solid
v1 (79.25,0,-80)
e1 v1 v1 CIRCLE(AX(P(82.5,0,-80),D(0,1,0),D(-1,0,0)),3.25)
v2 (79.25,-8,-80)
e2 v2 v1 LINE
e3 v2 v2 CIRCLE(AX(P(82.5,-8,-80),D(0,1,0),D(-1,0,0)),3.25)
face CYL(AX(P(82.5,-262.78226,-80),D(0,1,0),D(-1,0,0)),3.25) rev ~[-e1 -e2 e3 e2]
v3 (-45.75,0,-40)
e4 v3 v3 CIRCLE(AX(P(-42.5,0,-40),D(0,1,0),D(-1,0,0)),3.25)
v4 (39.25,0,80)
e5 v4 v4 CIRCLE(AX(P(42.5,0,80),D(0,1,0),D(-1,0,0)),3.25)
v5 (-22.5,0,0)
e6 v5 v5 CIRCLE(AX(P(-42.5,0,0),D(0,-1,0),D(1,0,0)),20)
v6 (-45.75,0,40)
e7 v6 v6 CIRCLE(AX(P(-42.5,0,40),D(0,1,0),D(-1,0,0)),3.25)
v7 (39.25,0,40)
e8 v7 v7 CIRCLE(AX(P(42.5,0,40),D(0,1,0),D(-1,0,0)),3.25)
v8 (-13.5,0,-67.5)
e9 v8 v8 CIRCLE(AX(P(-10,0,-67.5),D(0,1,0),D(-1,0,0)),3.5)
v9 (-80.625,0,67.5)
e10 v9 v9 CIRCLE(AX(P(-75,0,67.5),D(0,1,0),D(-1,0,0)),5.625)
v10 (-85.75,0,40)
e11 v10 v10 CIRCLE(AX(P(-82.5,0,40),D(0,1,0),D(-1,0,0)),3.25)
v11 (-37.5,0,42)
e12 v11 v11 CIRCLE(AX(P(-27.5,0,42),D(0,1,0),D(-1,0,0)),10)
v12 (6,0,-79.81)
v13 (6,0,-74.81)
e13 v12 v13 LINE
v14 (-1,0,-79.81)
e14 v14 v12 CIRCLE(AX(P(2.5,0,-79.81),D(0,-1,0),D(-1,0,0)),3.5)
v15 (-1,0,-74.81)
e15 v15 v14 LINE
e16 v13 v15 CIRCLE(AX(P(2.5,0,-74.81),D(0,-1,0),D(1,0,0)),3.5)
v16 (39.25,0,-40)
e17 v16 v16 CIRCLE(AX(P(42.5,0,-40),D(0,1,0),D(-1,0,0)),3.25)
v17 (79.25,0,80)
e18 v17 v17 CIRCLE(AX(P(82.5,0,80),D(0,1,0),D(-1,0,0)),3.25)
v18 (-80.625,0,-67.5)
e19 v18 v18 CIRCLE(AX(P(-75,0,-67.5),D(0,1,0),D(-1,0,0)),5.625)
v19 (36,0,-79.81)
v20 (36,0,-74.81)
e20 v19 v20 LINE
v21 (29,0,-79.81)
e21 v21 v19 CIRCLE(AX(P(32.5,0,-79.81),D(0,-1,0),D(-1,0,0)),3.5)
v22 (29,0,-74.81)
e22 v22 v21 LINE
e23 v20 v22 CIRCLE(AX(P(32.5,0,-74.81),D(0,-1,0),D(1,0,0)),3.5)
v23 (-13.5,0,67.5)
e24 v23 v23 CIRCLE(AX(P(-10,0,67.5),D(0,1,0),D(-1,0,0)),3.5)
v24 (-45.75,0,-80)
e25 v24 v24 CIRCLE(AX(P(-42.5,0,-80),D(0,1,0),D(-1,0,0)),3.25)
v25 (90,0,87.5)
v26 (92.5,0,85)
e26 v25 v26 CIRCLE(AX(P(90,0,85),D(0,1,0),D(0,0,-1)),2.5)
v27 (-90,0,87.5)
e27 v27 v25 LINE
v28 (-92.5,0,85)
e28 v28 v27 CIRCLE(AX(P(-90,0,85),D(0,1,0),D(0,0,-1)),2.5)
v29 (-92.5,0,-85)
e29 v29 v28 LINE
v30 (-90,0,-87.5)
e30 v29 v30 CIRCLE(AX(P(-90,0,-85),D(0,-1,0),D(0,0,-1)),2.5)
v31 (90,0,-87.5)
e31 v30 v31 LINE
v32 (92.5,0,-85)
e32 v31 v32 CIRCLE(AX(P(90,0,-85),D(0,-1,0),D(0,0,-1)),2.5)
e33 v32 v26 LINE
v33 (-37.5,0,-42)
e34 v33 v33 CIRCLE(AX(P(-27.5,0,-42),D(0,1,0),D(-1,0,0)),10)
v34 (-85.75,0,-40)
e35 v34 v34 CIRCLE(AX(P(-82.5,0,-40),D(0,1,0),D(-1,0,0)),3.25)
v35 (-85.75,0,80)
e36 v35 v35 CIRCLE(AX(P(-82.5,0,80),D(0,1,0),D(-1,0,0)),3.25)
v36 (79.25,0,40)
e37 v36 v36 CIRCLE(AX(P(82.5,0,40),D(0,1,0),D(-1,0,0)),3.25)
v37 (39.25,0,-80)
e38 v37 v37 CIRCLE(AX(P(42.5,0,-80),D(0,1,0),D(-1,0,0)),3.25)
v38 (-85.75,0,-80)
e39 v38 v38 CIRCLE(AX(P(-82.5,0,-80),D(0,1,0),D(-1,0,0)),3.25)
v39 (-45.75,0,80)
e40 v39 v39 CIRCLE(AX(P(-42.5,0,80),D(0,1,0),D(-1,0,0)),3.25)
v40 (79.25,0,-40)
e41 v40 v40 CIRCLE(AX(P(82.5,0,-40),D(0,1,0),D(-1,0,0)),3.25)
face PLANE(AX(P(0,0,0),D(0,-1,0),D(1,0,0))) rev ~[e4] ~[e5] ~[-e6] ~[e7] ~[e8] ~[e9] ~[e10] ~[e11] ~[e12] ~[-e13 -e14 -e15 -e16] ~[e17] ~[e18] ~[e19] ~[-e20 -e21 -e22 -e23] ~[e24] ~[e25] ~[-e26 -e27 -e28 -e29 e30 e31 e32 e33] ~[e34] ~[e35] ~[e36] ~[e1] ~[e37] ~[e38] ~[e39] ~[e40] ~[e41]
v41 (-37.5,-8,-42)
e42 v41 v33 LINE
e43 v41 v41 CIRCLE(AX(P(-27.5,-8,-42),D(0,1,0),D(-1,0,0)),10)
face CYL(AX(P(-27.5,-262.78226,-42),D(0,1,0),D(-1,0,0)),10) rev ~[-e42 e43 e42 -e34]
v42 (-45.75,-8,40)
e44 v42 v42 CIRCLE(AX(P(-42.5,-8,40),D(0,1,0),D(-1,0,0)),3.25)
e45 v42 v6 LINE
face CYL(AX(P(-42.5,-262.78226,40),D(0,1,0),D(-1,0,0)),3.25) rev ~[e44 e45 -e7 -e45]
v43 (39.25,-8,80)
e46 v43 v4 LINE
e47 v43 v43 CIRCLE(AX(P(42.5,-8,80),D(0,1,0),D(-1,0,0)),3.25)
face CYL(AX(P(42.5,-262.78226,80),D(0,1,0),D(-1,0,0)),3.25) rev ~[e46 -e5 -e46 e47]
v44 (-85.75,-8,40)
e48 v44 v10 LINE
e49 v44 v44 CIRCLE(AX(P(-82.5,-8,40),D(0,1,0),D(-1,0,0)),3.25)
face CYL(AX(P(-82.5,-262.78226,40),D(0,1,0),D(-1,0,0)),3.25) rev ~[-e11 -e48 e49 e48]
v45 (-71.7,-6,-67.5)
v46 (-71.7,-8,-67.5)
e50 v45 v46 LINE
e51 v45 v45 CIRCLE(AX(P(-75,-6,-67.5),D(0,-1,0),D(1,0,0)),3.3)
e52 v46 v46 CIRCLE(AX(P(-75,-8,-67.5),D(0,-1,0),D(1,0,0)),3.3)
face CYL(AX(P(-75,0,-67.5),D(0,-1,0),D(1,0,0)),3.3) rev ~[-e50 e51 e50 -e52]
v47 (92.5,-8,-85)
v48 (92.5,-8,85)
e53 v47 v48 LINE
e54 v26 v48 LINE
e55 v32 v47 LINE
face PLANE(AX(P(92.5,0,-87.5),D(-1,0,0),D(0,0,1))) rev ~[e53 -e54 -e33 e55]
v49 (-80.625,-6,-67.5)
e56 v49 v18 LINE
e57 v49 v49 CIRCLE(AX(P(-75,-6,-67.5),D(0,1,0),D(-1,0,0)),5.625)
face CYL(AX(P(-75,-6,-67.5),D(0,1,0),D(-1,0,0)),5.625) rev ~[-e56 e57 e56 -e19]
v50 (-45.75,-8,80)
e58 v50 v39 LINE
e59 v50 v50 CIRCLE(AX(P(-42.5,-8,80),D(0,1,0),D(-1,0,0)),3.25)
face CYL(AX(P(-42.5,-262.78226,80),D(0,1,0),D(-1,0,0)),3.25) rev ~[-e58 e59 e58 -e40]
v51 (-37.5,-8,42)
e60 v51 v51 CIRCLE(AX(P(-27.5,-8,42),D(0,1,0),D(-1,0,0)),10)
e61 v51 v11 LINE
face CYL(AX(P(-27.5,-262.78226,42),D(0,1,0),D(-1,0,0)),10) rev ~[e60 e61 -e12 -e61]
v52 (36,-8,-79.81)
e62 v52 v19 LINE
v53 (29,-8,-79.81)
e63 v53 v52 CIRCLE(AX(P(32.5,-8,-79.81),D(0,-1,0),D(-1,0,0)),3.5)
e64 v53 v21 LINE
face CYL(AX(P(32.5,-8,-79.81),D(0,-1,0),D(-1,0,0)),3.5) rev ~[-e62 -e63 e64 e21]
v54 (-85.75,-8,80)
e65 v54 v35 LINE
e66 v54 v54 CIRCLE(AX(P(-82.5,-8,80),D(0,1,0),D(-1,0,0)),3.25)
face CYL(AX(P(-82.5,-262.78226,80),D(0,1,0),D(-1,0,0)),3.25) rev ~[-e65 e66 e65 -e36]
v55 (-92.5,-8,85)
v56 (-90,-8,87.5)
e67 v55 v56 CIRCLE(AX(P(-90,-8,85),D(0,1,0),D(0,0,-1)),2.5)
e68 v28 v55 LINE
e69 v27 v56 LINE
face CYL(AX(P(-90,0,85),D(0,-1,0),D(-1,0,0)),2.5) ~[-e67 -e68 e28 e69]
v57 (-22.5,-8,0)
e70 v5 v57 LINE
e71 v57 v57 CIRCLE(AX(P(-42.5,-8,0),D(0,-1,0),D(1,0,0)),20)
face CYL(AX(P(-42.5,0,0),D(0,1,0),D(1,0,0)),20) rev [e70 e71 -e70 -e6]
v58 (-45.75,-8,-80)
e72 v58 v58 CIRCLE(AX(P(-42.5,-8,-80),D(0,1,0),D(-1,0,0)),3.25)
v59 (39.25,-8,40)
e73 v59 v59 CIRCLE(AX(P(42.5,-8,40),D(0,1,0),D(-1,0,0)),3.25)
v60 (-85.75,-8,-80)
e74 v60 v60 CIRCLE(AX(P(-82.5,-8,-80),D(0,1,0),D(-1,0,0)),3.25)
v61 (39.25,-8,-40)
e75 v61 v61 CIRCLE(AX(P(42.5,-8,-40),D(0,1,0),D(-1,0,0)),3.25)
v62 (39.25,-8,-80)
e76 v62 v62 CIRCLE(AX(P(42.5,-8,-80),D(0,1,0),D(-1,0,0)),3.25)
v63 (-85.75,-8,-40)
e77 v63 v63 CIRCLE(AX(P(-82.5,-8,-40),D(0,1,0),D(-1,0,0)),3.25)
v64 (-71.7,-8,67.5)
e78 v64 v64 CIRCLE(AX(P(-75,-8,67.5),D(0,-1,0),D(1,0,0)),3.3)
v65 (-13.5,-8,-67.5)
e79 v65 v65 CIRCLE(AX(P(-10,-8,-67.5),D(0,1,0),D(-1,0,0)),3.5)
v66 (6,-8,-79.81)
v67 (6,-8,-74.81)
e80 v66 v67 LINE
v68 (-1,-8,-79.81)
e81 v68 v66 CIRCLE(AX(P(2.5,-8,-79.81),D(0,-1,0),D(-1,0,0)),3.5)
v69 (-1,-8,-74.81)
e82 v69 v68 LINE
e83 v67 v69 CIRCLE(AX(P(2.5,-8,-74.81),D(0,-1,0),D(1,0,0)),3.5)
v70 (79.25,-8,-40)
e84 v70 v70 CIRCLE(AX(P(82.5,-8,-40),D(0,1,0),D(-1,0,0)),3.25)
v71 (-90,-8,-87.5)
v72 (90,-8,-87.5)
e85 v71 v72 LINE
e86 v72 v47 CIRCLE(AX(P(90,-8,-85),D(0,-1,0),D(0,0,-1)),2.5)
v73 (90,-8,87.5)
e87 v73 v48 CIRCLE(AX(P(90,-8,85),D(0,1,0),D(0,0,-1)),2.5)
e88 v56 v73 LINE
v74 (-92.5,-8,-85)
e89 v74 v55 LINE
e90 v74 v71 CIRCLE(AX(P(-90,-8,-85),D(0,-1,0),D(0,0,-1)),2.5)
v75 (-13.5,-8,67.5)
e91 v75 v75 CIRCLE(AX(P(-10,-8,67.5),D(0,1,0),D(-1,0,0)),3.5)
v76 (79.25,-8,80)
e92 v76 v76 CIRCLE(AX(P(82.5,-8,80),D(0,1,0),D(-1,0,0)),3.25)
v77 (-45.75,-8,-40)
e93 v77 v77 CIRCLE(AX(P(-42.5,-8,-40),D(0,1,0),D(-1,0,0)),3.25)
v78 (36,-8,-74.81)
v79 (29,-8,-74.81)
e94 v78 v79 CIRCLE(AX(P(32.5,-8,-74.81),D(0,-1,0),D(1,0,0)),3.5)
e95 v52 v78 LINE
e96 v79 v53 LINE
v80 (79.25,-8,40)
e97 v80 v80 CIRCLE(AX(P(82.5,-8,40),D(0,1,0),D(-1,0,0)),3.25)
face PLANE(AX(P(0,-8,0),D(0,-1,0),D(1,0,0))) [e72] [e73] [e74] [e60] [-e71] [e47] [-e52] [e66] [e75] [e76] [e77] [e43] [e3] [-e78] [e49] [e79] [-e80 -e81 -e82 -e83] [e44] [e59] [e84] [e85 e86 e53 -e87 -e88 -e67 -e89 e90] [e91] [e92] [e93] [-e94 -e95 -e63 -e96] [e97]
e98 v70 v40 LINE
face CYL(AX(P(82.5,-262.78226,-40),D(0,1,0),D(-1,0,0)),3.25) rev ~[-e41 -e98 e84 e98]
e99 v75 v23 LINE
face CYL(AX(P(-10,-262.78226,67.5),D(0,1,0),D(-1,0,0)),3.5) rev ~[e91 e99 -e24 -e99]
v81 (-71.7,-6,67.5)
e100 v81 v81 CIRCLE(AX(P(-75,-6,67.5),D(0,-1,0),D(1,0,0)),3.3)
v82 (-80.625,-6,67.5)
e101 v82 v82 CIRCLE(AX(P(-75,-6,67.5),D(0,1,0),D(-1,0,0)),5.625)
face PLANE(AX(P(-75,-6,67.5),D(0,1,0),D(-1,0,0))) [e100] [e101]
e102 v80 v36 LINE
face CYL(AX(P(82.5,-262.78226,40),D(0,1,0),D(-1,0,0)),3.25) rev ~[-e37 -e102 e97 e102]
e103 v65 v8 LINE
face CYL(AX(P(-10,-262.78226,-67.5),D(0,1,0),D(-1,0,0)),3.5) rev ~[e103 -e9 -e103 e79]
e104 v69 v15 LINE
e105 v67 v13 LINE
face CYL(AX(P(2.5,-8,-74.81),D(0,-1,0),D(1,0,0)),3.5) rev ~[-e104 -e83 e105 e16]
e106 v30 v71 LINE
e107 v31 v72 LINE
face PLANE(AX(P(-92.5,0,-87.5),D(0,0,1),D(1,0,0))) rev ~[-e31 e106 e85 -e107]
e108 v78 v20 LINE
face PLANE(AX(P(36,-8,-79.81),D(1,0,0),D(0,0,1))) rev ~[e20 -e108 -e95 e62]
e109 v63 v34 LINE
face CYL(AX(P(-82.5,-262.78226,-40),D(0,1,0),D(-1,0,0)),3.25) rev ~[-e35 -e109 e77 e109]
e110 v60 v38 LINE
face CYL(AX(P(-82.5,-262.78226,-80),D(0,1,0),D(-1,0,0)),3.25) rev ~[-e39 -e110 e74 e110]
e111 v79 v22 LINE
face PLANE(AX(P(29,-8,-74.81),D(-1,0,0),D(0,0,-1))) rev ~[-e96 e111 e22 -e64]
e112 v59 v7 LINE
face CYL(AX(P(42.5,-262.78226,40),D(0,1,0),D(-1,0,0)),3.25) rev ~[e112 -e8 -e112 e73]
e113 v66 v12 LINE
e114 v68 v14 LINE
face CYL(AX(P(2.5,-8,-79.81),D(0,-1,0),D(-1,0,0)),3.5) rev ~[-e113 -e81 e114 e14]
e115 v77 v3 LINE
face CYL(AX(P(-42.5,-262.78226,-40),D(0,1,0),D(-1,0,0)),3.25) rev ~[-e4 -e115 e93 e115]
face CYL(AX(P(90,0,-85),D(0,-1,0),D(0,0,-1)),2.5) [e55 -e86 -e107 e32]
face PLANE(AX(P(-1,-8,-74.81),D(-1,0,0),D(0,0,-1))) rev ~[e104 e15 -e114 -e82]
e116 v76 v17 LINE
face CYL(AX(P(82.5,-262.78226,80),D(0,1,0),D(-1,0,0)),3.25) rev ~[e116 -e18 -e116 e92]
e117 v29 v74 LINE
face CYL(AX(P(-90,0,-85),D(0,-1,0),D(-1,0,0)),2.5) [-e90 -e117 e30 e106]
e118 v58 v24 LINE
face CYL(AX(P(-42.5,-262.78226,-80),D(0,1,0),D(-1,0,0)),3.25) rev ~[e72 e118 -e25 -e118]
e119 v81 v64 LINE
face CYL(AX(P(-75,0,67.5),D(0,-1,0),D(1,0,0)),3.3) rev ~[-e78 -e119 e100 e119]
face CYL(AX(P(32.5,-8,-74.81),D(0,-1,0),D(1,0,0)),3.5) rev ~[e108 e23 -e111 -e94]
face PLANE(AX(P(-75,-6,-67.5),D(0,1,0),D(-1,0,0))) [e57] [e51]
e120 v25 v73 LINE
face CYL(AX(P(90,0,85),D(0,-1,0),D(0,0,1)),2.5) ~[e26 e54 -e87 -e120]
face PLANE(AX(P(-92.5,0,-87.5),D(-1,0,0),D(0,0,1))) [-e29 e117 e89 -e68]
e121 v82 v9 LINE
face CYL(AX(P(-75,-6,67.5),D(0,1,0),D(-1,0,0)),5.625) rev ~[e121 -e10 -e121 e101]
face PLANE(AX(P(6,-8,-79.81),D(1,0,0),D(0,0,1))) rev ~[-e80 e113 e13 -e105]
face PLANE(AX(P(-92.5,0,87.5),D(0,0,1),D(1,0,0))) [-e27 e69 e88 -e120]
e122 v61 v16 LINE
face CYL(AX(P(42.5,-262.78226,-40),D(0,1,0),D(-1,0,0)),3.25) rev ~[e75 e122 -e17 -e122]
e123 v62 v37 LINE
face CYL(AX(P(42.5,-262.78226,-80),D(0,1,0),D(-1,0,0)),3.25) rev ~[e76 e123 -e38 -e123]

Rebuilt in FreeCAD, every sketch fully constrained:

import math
import FreeCAD as App
import Part
import Sketcher


def edges_at(feature, points):
    """Names of the edges that pass closest to the given points."""
    edges = feature.Shape.Edges
    near = lambda p: min(range(len(edges)), key=lambda i: edges[i].distToShape(Part.Vertex(*p))[0])
    return sorted({f"Edge{near(p) + 1}" for p in points})

doc = App.newDocument("Part")
body = doc.addObject("PartDesign::Body", "Body")

# Sketch on XZ plane
sketch1 = body.newObject("Sketcher::SketchObject", "Sketch")
sketch1.AttachmentSupport = (doc.getObject("XZ_Plane"), [""])
sketch1.MapMode = "FlatFace"
sketch1.addGeometry([
    Part.LineSegment(App.Vector(-92, 88, 0), App.Vector(-92, -88, 0)),  # 0
    Part.LineSegment(App.Vector(-92, -88, 0), App.Vector(92, -88, 0)),  # 1
    Part.LineSegment(App.Vector(92, -88, 0), App.Vector(92, 88, 0)),  # 2
    Part.LineSegment(App.Vector(92, 88, 0), App.Vector(-92, 88, 0)),  # 3
    Part.Circle(App.Vector(-42, 0, 0), App.Vector(0, 0, 1), 20),  # 4
], False)
sketch1.addConstraint([
    Sketcher.Constraint("Coincident", 0, 2, 1, 1),
    Sketcher.Constraint("Coincident", 1, 2, 2, 1),
    Sketcher.Constraint("Coincident", 2, 2, 3, 1),
    Sketcher.Constraint("Coincident", 3, 2, 0, 1),
    Sketcher.Constraint("Vertical", 0),
    Sketcher.Constraint("Horizontal", 1),
    Sketcher.Constraint("Vertical", 2),
    Sketcher.Constraint("Horizontal", 3),
    Sketcher.Constraint("Symmetric", 0, 2, 2, 2, -1, 1),
    Sketcher.Constraint("PointOnObject", 4, 3, -1),
    Sketcher.Constraint("Diameter", 4, 40.0),
    Sketcher.Constraint("DistanceX", 1, 1, 1, 2, 185.0),
    Sketcher.Constraint("DistanceY", 0, 2, 0, 1, 175.0),
    Sketcher.Constraint("DistanceX", 0, 2, 4, 3, 50.0),
])
pad1 = body.newObject("PartDesign::Pad", "Pad")
pad1.Profile = sketch1
pad1.Length = 8

# Sketch on XZ plane
sketch2 = body.newObject("Sketcher::SketchObject", "Sketch001")
sketch2.AttachmentSupport = (doc.getObject("XZ_Plane"), [""])
sketch2.MapMode = "FlatFace"
sketch2.AttachmentOffset = App.Placement(App.Vector(0, 0, 8), App.Rotation())
sketch2.addGeometry([
    Part.Circle(App.Vector(-82.5, 80, 0), App.Vector(0, 0, 1), 3.2),  # 0
    Part.Circle(App.Vector(-42.5, 80, 0), App.Vector(0, 0, 1), 3.2),  # 1
    Part.Circle(App.Vector(-42.5, 40, 0), App.Vector(0, 0, 1), 3.2),  # 2
    Part.Circle(App.Vector(-82.5, 40, 0), App.Vector(0, 0, 1), 3.2),  # 3
    Part.Circle(App.Vector(-82.5, -40, 0), App.Vector(0, 0, 1), 3.2),  # 4
    Part.Circle(App.Vector(-42.5, -40, 0), App.Vector(0, 0, 1), 3.2),  # 5
    Part.Circle(App.Vector(-42.5, -80, 0), App.Vector(0, 0, 1), 3.2),  # 6
    Part.Circle(App.Vector(-82.5, -80, 0), App.Vector(0, 0, 1), 3.2),  # 7
    Part.Circle(App.Vector(42.5, -80, 0), App.Vector(0, 0, 1), 3.2),  # 8
    Part.Circle(App.Vector(82.5, -80, 0), App.Vector(0, 0, 1), 3.2),  # 9
    Part.Circle(App.Vector(82.5, -40, 0), App.Vector(0, 0, 1), 3.2),  # 10
    Part.Circle(App.Vector(42.5, -40, 0), App.Vector(0, 0, 1), 3.2),  # 11
    Part.Circle(App.Vector(42.5, 40, 0), App.Vector(0, 0, 1), 3.2),  # 12
    Part.Circle(App.Vector(82.5, 40, 0), App.Vector(0, 0, 1), 3.2),  # 13
    Part.Circle(App.Vector(82.5, 80, 0), App.Vector(0, 0, 1), 3.2),  # 14
    Part.Circle(App.Vector(42.5, 80, 0), App.Vector(0, 0, 1), 3.2),  # 15
], False)
sketch2.addConstraint([
    Sketcher.Constraint("Equal", 0, 1),
    Sketcher.Constraint("Equal", 1, 2),
    Sketcher.Constraint("Equal", 2, 3),
    Sketcher.Constraint("Equal", 3, 4),
    Sketcher.Constraint("Equal", 4, 5),
    Sketcher.Constraint("Equal", 5, 6),
    Sketcher.Constraint("Equal", 6, 7),
    Sketcher.Constraint("Equal", 7, 8),
    Sketcher.Constraint("Equal", 8, 9),
    Sketcher.Constraint("Equal", 9, 10),
    Sketcher.Constraint("Equal", 10, 11),
    Sketcher.Constraint("Equal", 11, 12),
    Sketcher.Constraint("Equal", 12, 13),
    Sketcher.Constraint("Equal", 13, 14),
    Sketcher.Constraint("Equal", 14, 15),
    Sketcher.Constraint("Symmetric", 1, 3, 8, 3, -1, 1),
    Sketcher.Constraint("Symmetric", 0, 3, 9, 3, -1, 1),
    Sketcher.Constraint("Symmetric", 3, 3, 10, 3, -1, 1),
    Sketcher.Constraint("Symmetric", 2, 3, 11, 3, -1, 1),
    Sketcher.Constraint("Symmetric", 5, 3, 12, 3, -1, 1),
    Sketcher.Constraint("Symmetric", 4, 3, 13, 3, -1, 1),
    Sketcher.Constraint("Symmetric", 7, 3, 14, 3, -1, 1),
    Sketcher.Constraint("Symmetric", 6, 3, 15, 3, -1, 1),
    Sketcher.Constraint("Symmetric", 6, 3, 8, 3, -2),
    Sketcher.Constraint("Symmetric", 7, 3, 9, 3, -2),
    Sketcher.Constraint("Symmetric", 4, 3, 10, 3, -2),
    Sketcher.Constraint("Symmetric", 5, 3, 11, 3, -2),
    Sketcher.Constraint("Horizontal", 0, 3, 1, 3),
    Sketcher.Constraint("Horizontal", 2, 3, 3, 3),
    Sketcher.Constraint("Vertical", 1, 3, 2, 3),
    Sketcher.Constraint("Vertical", 0, 3, 3, 3),
    Sketcher.Constraint("Diameter", 0, 6.5),
    Sketcher.Constraint("DistanceY", -1, 1, 0, 3, 80.0),
    Sketcher.Constraint("DistanceY", -1, 1, 2, 3, 40.0),
    Sketcher.Constraint("DistanceX", 0, 3, 1, 3, 40.0),
    Sketcher.Constraint("DistanceX", 6, 3, 8, 3, 85.0),
])
doc.recompute()
hole = body.newObject("PartDesign::Hole", "Hole")
hole.Profile = sketch2
hole.ThreadType = "None"
hole.Diameter = 6.5
hole.DepthType = "ThroughAll"

# Sketch on XZ plane
sketch3 = body.newObject("Sketcher::SketchObject", "Sketch002")
sketch3.AttachmentSupport = (doc.getObject("XZ_Plane"), [""])
sketch3.MapMode = "FlatFace"
sketch3.AttachmentOffset = App.Placement(App.Vector(0, 0, 8), App.Rotation())
sketch3.addGeometry([
    Part.Circle(App.Vector(-28, -42, 0), App.Vector(0, 0, 1), 10),
    Part.Circle(App.Vector(-28, 42, 0), App.Vector(0, 0, 1), 10),
], False)
sketch3.addConstraint([
    Sketcher.Constraint("Equal", 0, 1),
    Sketcher.Constraint("Symmetric", 0, 3, 1, 3, -1),
    Sketcher.Constraint("Diameter", 0, 20.0),
    Sketcher.Constraint("DistanceY", 0, 3, -1, 1, 42.0),
    Sketcher.Constraint("DistanceX", 0, 3, -1, 1, 27.5),
])
doc.recompute()
hole2 = body.newObject("PartDesign::Hole", "Hole001")
hole2.Profile = sketch3
hole2.ThreadType = "None"
hole2.Diameter = 20
hole2.DepthType = "ThroughAll"

# Sketch on XZ plane
sketch4 = body.newObject("Sketcher::SketchObject", "Sketch003")
sketch4.AttachmentSupport = (doc.getObject("XZ_Plane"), [""])
sketch4.MapMode = "FlatFace"
sketch4.AttachmentOffset = App.Placement(App.Vector(0, 0, 8), App.Rotation())
sketch4.addGeometry([
    Part.Circle(App.Vector(-10, 67.5, 0), App.Vector(0, 0, 1), 3.5),
    Part.Circle(App.Vector(-10, -67.5, 0), App.Vector(0, 0, 1), 3.5),
], False)
sketch4.addConstraint([
    Sketcher.Constraint("Equal", 0, 1),
    Sketcher.Constraint("Symmetric", 0, 3, 1, 3, -1),
    Sketcher.Constraint("Diameter", 0, 7.0),
    Sketcher.Constraint("DistanceX", 0, 3, -1, 1, 10.0),
    Sketcher.Constraint("DistanceY", 1, 3, 0, 3, 135.0),
])
doc.recompute()
hole3 = body.newObject("PartDesign::Hole", "Hole002")
hole3.Profile = sketch4
hole3.ThreadType = "None"
hole3.Diameter = 7
hole3.DepthType = "ThroughAll"

# Sketch on XZ plane
sketch5 = body.newObject("Sketcher::SketchObject", "Sketch004")
sketch5.AttachmentSupport = (doc.getObject("XZ_Plane"), [""])
sketch5.MapMode = "FlatFace"
sketch5.AttachmentOffset = App.Placement(App.Vector(0, 0, 8), App.Rotation())
sketch5.addGeometry([
    Part.LineSegment(App.Vector(6, -79.8, 0), App.Vector(6, -74.8, 0)),  # 0
    Part.ArcOfCircle(Part.Circle(App.Vector(2.5, -74.8, 0), App.Vector(0, 0, 1), 3.5), math.radians(0), math.radians(180)),  # 1
    Part.LineSegment(App.Vector(-1, -74.8, 0), App.Vector(-1, -79.8, 0)),  # 2
    Part.ArcOfCircle(Part.Circle(App.Vector(2.5, -79.8, 0), App.Vector(0, 0, 1), 3.5), math.radians(180), math.radians(360)),  # 3
    Part.LineSegment(App.Vector(36, -79.8, 0), App.Vector(36, -74.8, 0)),  # 4
    Part.ArcOfCircle(Part.Circle(App.Vector(32.5, -74.8, 0), App.Vector(0, 0, 1), 3.5), math.radians(0), math.radians(180)),  # 5
    Part.LineSegment(App.Vector(29, -74.8, 0), App.Vector(29, -79.8, 0)),  # 6
    Part.ArcOfCircle(Part.Circle(App.Vector(32.5, -79.8, 0), App.Vector(0, 0, 1), 3.5), math.radians(180), math.radians(360)),  # 7
], False)
sketch5.addConstraint([
    Sketcher.Constraint("Tangent", 0, 2, 1, 1),
    Sketcher.Constraint("Tangent", 1, 2, 2, 1),
    Sketcher.Constraint("Tangent", 2, 2, 3, 1),
    Sketcher.Constraint("Tangent", 3, 2, 0, 1),
    Sketcher.Constraint("Tangent", 4, 2, 5, 1),
    Sketcher.Constraint("Tangent", 5, 2, 6, 1),
    Sketcher.Constraint("Tangent", 6, 2, 7, 1),
    Sketcher.Constraint("Tangent", 7, 2, 4, 1),
    Sketcher.Constraint("Vertical", 0),
    Sketcher.Constraint("Vertical", 2),
    Sketcher.Constraint("Vertical", 4),
    Sketcher.Constraint("Vertical", 6),
    Sketcher.Constraint("Equal", 3, 5),
    Sketcher.Constraint("Horizontal", 1, 3, 5, 3),
    Sketcher.Constraint("Horizontal", 3, 3, 7, 3),
    Sketcher.Constraint("Radius", 1, 3.5),
    Sketcher.Constraint("DistanceY", 0, 1, 0, 2, 5.0),
    Sketcher.Constraint("DistanceX", -1, 1, 0, 2, 6.0),
    Sketcher.Constraint("DistanceX", -1, 1, 4, 2, 36.0),
    Sketcher.Constraint("DistanceY", 1, 3, -1, 1, 74.81),
])
pocket1 = body.newObject("PartDesign::Pocket", "Pocket")
pocket1.Profile = sketch5
pocket1.Length = 25

# Sketch on XZ plane
sketch6 = body.newObject("Sketcher::SketchObject", "Sketch005")
sketch6.AttachmentSupport = (doc.getObject("XZ_Plane"), [""])
sketch6.MapMode = "FlatFace"
sketch6.addGeometry([
    Part.Circle(App.Vector(-75, 67.5, 0), App.Vector(0, 0, 1), 3.3),
    Part.Circle(App.Vector(-75, -67.5, 0), App.Vector(0, 0, 1), 3.3),
], False)
sketch6.addConstraint([
    Sketcher.Constraint("Equal", 0, 1),
    Sketcher.Constraint("Symmetric", 0, 3, 1, 3, -1),
    Sketcher.Constraint("Diameter", 0, 6.6),
    Sketcher.Constraint("DistanceX", 0, 3, -1, 1, 75.0),
    Sketcher.Constraint("DistanceY", 1, 3, 0, 3, 135.0),
])
doc.recompute()
hole4 = body.newObject("PartDesign::Hole", "Hole003")
hole4.Profile = sketch6
hole4.ThreadType = "None"
hole4.Diameter = 6.6
hole4.DepthType = "ThroughAll"
hole4.HoleCutType = "Counterbore"
hole4.HoleCutDiameter = 11.25
hole4.HoleCutDepth = 6
hole4.Reversed = True
doc.recompute()

fillet = body.newObject("PartDesign::Fillet", "Fillet")
fillet.Base = (hole4, edges_at(hole4, [
    (-92.5, -4, 87.5),
    (-92.5, -4, -87.5),
    (92.5, -4, -87.5),
    (92.5, -4, 87.5),
]))
fillet.Radius = 2.5

doc.recompute()
